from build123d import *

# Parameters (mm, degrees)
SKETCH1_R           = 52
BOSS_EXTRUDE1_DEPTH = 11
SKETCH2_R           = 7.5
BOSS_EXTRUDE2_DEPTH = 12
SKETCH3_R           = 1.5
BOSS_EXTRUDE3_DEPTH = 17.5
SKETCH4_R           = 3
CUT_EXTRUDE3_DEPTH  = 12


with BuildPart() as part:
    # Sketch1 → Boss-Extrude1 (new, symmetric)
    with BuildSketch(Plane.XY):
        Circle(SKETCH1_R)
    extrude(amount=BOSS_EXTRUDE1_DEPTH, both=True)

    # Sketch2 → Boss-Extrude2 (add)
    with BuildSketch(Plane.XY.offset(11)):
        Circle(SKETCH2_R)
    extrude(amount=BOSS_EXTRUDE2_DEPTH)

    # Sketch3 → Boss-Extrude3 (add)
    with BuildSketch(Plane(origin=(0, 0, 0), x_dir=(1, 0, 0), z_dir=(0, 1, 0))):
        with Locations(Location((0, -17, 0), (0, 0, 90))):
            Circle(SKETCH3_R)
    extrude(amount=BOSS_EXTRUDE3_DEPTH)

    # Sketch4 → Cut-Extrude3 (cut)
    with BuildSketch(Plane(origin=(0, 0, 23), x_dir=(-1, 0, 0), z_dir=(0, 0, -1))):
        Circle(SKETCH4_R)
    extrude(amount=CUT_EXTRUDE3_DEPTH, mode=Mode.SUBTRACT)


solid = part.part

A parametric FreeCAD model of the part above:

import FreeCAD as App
import Part
import Sketcher
Q = App.Units.Quantity

doc = App.newDocument("Part")
body = doc.addObject("PartDesign::Body", "Body")

sketch1 = doc.addObject("Sketcher::SketchObject", "Sketch")
body.addObject(sketch1)
sketch1.AttachmentSupport = (doc.XY_Plane, [""])
sketch1.MapMode = "FlatFace"
sketch1.addGeometry(Part.Circle(App.Vector(0, 0, 0), App.Vector(0, 0, 1), 52), False)
sketch1.addConstraint([
    Sketcher.Constraint("Coincident", 0, 3, -1, 1),
    Sketcher.Constraint("Diameter", 0, Q("104 mm")),
])
pad1 = doc.addObject("PartDesign::Pad", "Pad")
body.addObject(pad1)
pad1.Profile = sketch1
pad1.Length = 22
pad1.Midplane = True

sketch2 = doc.addObject("Sketcher::SketchObject", "Sketch001")
body.addObject(sketch2)
sketch2.AttachmentSupport = (doc.XY_Plane, [""])
sketch2.MapMode = "FlatFace"
sketch2.AttachmentOffset = App.Placement(App.Vector(0, 0, 11), App.Rotation())
sketch2.addGeometry(Part.Circle(App.Vector(0, 0, 0), App.Vector(0, 0, 1), 8), False)
sketch2.addConstraint([
    Sketcher.Constraint("Coincident", 0, 3, -1, 1),
    Sketcher.Constraint("Diameter", 0, Q("15 mm")),
])
pad2 = doc.addObject("PartDesign::Pad", "Pad001")
body.addObject(pad2)
pad2.Profile = sketch2
pad2.Length = 12

sketch3 = doc.addObject("Sketcher::SketchObject", "Sketch002")
body.addObject(sketch3)
sketch3.AttachmentSupport = (doc.XZ_Plane, [""])
sketch3.MapMode = "FlatFace"
sketch3.addGeometry(Part.Circle(App.Vector(0, 17, 0), App.Vector(0, 0, 1), 1.5), False)
sketch3.addConstraint([
    Sketcher.Constraint("PointOnObject", 0, 3, -2),
    Sketcher.Constraint("Diameter", 0, Q("3 mm")),
    Sketcher.Constraint("DistanceY", -1, 1, 0, 3, Q("17 mm")),
])
pad3 = doc.addObject("PartDesign::Pad", "Pad002")
body.addObject(pad3)
pad3.Profile = sketch3
pad3.Length = 17.5
pad3.Reversed = True

sketch4 = doc.addObject("Sketcher::SketchObject", "Sketch003")
body.addObject(sketch4)
sketch4.AttachmentSupport = (doc.XY_Plane, [""])
sketch4.MapMode = "FlatFace"
sketch4.AttachmentOffset = App.Placement(App.Vector(0, 0, 23), App.Rotation())
sketch4.addGeometry(Part.Circle(App.Vector(0, 0, 0), App.Vector(0, 0, 1), 3), False)
sketch4.addConstraint([
    Sketcher.Constraint("Coincident", 0, 3, -1, 1),
    Sketcher.Constraint("Diameter", 0, Q("6 mm")),
])
pocket1 = doc.addObject("PartDesign::Pocket", "Pocket")
body.addObject(pocket1)
pocket1.Profile = sketch4
pocket1.Length = 12

doc.recompute()
